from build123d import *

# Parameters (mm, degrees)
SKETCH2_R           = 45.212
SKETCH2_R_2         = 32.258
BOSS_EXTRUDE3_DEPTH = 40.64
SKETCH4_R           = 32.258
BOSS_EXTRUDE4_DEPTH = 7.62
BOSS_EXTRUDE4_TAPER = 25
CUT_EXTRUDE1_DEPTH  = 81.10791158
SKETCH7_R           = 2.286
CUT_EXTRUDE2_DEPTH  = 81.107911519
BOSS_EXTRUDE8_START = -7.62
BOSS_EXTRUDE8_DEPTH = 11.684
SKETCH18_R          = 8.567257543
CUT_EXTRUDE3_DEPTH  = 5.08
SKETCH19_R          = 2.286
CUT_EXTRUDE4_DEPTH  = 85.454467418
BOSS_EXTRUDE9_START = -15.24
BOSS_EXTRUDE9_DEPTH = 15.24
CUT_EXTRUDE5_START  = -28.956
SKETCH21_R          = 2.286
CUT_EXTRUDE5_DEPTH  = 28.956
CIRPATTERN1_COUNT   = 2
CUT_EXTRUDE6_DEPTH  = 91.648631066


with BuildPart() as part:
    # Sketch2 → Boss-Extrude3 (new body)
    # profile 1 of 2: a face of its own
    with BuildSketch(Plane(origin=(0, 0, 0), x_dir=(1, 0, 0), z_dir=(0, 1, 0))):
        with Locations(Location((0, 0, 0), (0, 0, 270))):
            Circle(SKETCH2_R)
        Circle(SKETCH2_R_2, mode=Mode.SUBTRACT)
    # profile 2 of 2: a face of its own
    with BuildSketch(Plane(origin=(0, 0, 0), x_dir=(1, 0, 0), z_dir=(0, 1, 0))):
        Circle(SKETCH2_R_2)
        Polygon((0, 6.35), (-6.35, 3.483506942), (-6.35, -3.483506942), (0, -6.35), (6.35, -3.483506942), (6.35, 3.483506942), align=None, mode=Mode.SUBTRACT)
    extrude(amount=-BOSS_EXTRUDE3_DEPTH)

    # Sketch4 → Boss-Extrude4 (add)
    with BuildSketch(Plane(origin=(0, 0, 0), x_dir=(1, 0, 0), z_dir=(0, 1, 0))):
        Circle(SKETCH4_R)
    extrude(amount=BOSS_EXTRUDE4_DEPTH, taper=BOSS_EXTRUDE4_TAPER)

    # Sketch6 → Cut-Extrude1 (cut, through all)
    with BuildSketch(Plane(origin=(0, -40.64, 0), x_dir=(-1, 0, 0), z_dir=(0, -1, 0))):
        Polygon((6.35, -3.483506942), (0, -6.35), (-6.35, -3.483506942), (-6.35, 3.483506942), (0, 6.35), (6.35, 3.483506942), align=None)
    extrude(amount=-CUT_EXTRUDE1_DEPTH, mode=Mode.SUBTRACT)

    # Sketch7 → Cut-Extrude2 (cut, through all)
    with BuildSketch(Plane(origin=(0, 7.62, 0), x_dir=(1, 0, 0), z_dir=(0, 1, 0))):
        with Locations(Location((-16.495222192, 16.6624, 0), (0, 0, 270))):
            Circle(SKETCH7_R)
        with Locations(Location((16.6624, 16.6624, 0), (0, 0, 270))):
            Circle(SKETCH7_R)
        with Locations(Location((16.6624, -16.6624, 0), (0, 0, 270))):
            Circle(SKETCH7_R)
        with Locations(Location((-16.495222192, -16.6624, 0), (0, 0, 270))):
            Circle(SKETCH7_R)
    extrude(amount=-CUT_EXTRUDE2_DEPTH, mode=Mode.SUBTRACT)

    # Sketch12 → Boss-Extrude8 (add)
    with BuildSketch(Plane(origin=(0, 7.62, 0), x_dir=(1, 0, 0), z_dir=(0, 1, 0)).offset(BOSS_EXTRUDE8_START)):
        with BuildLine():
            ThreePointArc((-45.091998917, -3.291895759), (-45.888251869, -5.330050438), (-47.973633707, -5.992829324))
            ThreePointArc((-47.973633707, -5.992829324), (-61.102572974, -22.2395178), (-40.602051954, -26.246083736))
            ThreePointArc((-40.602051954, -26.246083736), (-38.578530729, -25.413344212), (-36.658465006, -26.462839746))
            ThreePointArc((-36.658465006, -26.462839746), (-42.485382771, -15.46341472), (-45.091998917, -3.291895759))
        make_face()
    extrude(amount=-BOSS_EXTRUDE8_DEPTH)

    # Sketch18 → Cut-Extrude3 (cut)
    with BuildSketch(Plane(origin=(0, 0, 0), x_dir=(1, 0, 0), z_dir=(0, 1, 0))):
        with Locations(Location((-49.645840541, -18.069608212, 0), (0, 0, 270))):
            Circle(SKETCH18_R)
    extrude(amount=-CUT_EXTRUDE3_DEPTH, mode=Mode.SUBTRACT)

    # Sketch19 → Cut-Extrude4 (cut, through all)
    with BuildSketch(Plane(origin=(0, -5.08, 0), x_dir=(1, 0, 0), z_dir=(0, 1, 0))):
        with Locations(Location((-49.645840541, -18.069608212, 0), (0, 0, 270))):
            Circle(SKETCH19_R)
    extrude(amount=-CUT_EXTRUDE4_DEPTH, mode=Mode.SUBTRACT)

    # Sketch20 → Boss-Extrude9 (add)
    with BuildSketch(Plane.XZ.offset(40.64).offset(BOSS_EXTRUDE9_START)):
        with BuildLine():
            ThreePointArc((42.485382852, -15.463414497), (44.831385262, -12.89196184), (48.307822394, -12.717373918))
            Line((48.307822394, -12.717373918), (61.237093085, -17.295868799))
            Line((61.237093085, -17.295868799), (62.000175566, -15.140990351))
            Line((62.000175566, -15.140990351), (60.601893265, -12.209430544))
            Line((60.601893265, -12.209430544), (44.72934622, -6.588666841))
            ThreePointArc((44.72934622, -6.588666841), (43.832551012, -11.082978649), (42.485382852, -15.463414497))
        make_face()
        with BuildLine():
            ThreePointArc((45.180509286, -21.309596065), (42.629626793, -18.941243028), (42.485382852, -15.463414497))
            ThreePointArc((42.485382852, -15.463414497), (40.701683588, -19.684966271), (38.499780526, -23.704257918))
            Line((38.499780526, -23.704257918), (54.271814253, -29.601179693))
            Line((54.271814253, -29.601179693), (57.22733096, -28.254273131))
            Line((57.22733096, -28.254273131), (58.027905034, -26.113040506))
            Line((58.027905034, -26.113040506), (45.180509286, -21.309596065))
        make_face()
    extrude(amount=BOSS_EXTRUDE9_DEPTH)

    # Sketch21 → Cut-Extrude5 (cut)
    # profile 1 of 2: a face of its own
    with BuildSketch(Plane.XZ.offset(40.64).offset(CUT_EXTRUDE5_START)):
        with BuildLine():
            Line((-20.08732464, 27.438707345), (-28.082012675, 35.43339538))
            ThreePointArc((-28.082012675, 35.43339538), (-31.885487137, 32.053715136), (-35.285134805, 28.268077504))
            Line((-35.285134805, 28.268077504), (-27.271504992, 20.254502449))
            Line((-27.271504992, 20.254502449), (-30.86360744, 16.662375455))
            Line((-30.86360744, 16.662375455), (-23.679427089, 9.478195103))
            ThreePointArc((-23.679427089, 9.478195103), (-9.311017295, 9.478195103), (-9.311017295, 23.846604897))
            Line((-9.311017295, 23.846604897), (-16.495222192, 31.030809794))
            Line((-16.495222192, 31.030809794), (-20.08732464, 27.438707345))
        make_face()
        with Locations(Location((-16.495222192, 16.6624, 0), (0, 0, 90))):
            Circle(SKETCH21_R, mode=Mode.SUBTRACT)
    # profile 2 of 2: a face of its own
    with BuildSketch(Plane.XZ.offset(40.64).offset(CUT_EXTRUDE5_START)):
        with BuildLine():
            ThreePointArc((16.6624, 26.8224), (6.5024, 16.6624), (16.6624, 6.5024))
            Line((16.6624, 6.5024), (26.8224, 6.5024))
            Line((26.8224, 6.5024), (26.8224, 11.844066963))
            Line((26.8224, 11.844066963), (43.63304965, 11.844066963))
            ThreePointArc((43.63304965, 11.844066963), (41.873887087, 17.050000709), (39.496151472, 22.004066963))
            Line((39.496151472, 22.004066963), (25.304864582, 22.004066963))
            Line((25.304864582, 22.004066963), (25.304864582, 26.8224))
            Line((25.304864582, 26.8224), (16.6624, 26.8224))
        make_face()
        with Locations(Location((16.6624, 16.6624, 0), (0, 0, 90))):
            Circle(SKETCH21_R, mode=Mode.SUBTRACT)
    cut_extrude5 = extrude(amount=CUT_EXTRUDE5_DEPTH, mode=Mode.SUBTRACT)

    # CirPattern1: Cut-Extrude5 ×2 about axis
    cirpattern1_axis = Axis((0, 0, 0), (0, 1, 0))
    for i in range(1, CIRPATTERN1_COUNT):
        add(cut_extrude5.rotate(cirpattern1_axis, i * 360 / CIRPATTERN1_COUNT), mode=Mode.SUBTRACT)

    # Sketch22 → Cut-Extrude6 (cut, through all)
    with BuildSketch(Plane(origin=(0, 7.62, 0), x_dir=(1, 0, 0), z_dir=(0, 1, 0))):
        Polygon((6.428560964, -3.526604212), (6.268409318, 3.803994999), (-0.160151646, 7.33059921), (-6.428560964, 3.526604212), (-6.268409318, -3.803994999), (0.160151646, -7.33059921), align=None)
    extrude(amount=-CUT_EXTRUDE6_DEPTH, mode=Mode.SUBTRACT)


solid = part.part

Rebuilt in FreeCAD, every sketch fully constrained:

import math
import FreeCAD as App
import Part
import Sketcher

V = App.Vector
Q = App.Units.Quantity


def add_polygon(sketch, points):
    """Adds a closed chain of lines whose ends are joined by coincident constraints."""
    first, n = sketch.GeometryCount, len(points)
    for a, b in zip(points, points[1:] + points[:1]):
        sketch.addGeometry(Part.LineSegment(App.Vector(*a, 0), App.Vector(*b, 0)), False)
    for i in range(n):
        sketch.addConstraint(Sketcher.Constraint("Coincident", first + i, 2, first + (i + 1) % n, 1))

doc = App.newDocument("Part")
body = doc.addObject("PartDesign::Body", "Body")

sketch1 = body.newObject("Sketcher::SketchObject", "Sketch")
sketch1.AttachmentSupport = (doc.getObject("XZ_Plane"), [""])
sketch1.MapMode = "FlatFace"
sketch1.addGeometry(Part.Circle(V(0, 0, 0), V(0, 0, 1), 45), False)
add_polygon(sketch1, [(0, -6), (6, -3), (6, 3), (0, 6), (-6, 3), (-6, -3)])
sketch1.addConstraint([
    Sketcher.Constraint("Vertical", 2),
    Sketcher.Constraint("Vertical", 5),
    Sketcher.Constraint("Coincident", 0, 3, -1, 1),
    Sketcher.Constraint("Symmetric", 1, 2, 4, 2, -1, 1),
    Sketcher.Constraint("Symmetric", 3, 2, 6, 2, -1, 1),
    Sketcher.Constraint("PointOnObject", 3, 2, -2),
    Sketcher.Constraint("Parallel", 3, 6),
    Sketcher.Constraint("Horizontal", 2, 2, 4, 2),
    Sketcher.Constraint("Diameter", 0, Q("3.56 in")),
    Sketcher.Constraint("DistanceX", 4, 2, 2, 2, Q("0.5 in")),
    Sketcher.Constraint("DistanceY", -1, 1, 3, 2, Q("0.25 in")),
    Sketcher.Constraint("DistanceY", 2, 1, 2, 2, Q("6.967014 mm")),
])
pad1 = body.newObject("PartDesign::Pad", "Pad")
pad1.Profile = sketch1
pad1.Length = Q("1.6 in")

sketch2 = body.newObject("Sketcher::SketchObject", "Sketch001")
sketch2.AttachmentSupport = (doc.getObject("XZ_Plane"), [""])
sketch2.MapMode = "FlatFace"
sketch2.addGeometry(Part.Circle(V(0, 0, 0), V(0, 0, 1), 32), False)
sketch2.addConstraint([
    Sketcher.Constraint("Coincident", 0, 3, -1, 1),
    Sketcher.Constraint("Diameter", 0, Q("2.54 in")),
])
pad2 = body.newObject("PartDesign::Pad", "Pad001")
pad2.Profile = sketch2
pad2.Length = Q("0.3 in")
pad2.Reversed = True
pad2.TaperAngle = -25

sketch3 = body.newObject("Sketcher::SketchObject", "Sketch002")
sketch3.AttachmentSupport = (doc.getObject("XZ_Plane"), [""])
sketch3.MapMode = "FlatFace"
sketch3.AttachmentOffset = App.Placement(V(0, 0, 1.6 * 25.4), App.Rotation())
add_polygon(sketch3, [(0, 6), (-6, 3), (-6, -3), (0, -6), (6, -3), (6, 3)])
sketch3.addConstraint([
    Sketcher.Constraint("Vertical", 1),
    Sketcher.Constraint("Vertical", 4),
    Sketcher.Constraint("Symmetric", 0, 2, 3, 2, -1, 1),
    Sketcher.Constraint("Symmetric", 2, 2, 5, 2, -1, 1),
    Sketcher.Constraint("PointOnObject", 2, 2, -2),
    Sketcher.Constraint("Parallel", 2, 5),
    Sketcher.Constraint("Horizontal", 1, 2, 3, 2),
    Sketcher.Constraint("DistanceX", 1, 2, 3, 2, Q("0.5 in")),
    Sketcher.Constraint("DistanceY", 2, 2, 5, 2, Q("0.5 in")),
    Sketcher.Constraint("DistanceY", 1, 2, 1, 1, Q("6.967014 mm")),
])
pocket1 = body.newObject("PartDesign::Pocket", "Pocket")
pocket1.Profile = sketch3
pocket1.Type = "ThroughAll"

sketch4 = body.newObject("Sketcher::SketchObject", "Sketch003")
sketch4.AttachmentSupport = (doc.getObject("XZ_Plane"), [""])
sketch4.MapMode = "FlatFace"
sketch4.AttachmentOffset = App.Placement(V(0, 0, -0.3 * 25.4), App.Rotation())
sketch4.addGeometry([
    Part.Circle(V(-16.5, -16.7, 0), V(0, 0, 1), 2.3),
    Part.Circle(V(16.7, -16.7, 0), V(0, 0, 1), 2.3),
    Part.Circle(V(16.7, 16.7, 0), V(0, 0, 1), 2.3),
    Part.Circle(V(-16.5, 16.7, 0), V(0, 0, 1), 2.3),
], False)
sketch4.addConstraint([
    Sketcher.Constraint("Equal", 0, 1),
    Sketcher.Constraint("Equal", 1, 2),
    Sketcher.Constraint("Equal", 2, 3),
    Sketcher.Constraint("Symmetric", 1, 3, 2, 3, -1),
    Sketcher.Constraint("Symmetric", 0, 3, 3, 3, -1),
    Sketcher.Constraint("Horizontal", 0, 3, 1, 3),
    Sketcher.Constraint("Diameter", 0, Q("0.18 in")),
    Sketcher.Constraint("DistanceY", 0, 3, -1, 1, Q("0.656 in")),
    Sketcher.Constraint("DistanceX", -1, 1, 1, 3, Q("0.656 in")),
    Sketcher.Constraint("DistanceX", 0, 3, -1, 1, Q("16.495222 mm")),
])
pocket2 = body.newObject("PartDesign::Pocket", "Pocket001")
pocket2.Profile = sketch4
pocket2.Type = "ThroughAll"
pocket2.Reversed = True

sketch5 = body.newObject("Sketcher::SketchObject", "Sketch004")
sketch5.AttachmentSupport = (doc.getObject("XZ_Plane"), [""])
sketch5.MapMode = "FlatFace"
sketch5.addGeometry([
    Part.ArcOfCircle(Part.Circle(V(-47.6, 3.5, 0), V(0, 0, 1), 2.5), math.radians(-4), math.radians(98)),
    Part.ArcOfCircle(Part.Circle(V(-49.6, 18.1, 0), V(0, 0, 1), 12.2), math.radians(42), math.radians(278)),
    Part.ArcOfCircle(Part.Circle(V(-38.7, 27.9, 0), V(0, 0, 1), 2.5), math.radians(-138), math.radians(-36)),
    Part.ArcOfCircle(Part.Circle(V(0, 0, 0), V(0, 0, 1), 45.2), math.radians(144), math.radians(176)),
], False)
sketch5.addConstraint([
    Sketcher.Constraint("Tangent", 0, 2, 1, 2),
    Sketcher.Constraint("Tangent", 1, 1, 2, 1),
    Sketcher.Constraint("Tangent", 2, 2, 3, 1),
    Sketcher.Constraint("Tangent", 3, 2, 0, 1),
    Sketcher.Constraint("Coincident", 3, 3, -1, 1),
    Sketcher.Constraint("Equal", 0, 2),
    Sketcher.Constraint("Radius", 0, Q("0.1 in")),
    Sketcher.Constraint("Radius", 1, Q("0.48 in")),
    Sketcher.Constraint("Radius", 3, Q("1.78 in")),
    Sketcher.Constraint("DistanceX", 3, 2, -1, 1, Q("45.091999 mm")),
    Sketcher.Constraint("DistanceX", 1, 3, -1, 1, Q("49.645841 mm")),
])
pad3 = body.newObject("PartDesign::Pad", "Pad002")
pad3.Profile = sketch5
pad3.Length = Q("0.46 in")

sketch6 = body.newObject("Sketcher::SketchObject", "Sketch005")
sketch6.AttachmentSupport = (doc.getObject("XZ_Plane"), [""])
sketch6.MapMode = "FlatFace"
sketch6.addGeometry(Part.Circle(V(-50, 18, 0), V(0, 0, 1), 9), False)
sketch6.addConstraint([
    Sketcher.Constraint("Diameter", 0, Q("17.134515 mm")),
    Sketcher.Constraint("DistanceX", 0, 3, -1, 1, Q("49.645841 mm")),
    Sketcher.Constraint("DistanceY", -1, 1, 0, 3, Q("18.069608 mm")),
])
pocket3 = body.newObject("PartDesign::Pocket", "Pocket002")
pocket3.Profile = sketch6
pocket3.Length = Q("0.2 in")
pocket3.Reversed = True

sketch7 = body.newObject("Sketcher::SketchObject", "Sketch006")
sketch7.AttachmentSupport = (doc.getObject("XZ_Plane"), [""])
sketch7.MapMode = "FlatFace"
sketch7.AttachmentOffset = App.Placement(V(0, 0, 0.2 * 25.4), App.Rotation())
sketch7.addGeometry(Part.Circle(V(-49.6, 18.1, 0), V(0, 0, 1), 2.3), False)
sketch7.addConstraint([
    Sketcher.Constraint("Diameter", 0, Q("0.18 in")),
    Sketcher.Constraint("DistanceX", 0, 3, -1, 1, Q("49.645841 mm")),
    Sketcher.Constraint("DistanceY", -1, 1, 0, 3, Q("18.069608 mm")),
])
pocket4 = body.newObject("PartDesign::Pocket", "Pocket003")
pocket4.Profile = sketch7
pocket4.Type = "ThroughAll"
pocket4.Reversed = True

sketch8 = body.newObject("Sketcher::SketchObject", "Sketch007")
sketch8.AttachmentSupport = (doc.getObject("XZ_Plane"), [""])
sketch8.MapMode = "FlatFace"
sketch8.AttachmentOffset = App.Placement(V(0, 0, 1 * 25.4), App.Rotation())
sketch8.addGeometry([
    Part.ArcOfCircle(Part.Circle(V(46.8, -17, 0), V(0, 0, 1), 4.6), math.radians(71), math.radians(160)),
    Part.LineSegment(V(48.3, -12.7, 0), V(61.2, -17.3, 0)),
    Part.LineSegment(V(61.2, -17.3, 0), V(62, -15.1, 0)),
    Part.LineSegment(V(62, -15.1, 0), V(60.6, -12.2, 0)),
    Part.LineSegment(V(60.6, -12.2, 0), V(44.7, -6.6, 0)),
    Part.ArcOfCircle(Part.Circle(V(0, 0, 0), V(0, 0, 1), 45.2), math.radians(-20), math.radians(-8.38)),
    Part.ArcOfCircle(Part.Circle(V(46.8, -17, 0), V(0, 0, 1), 4.6), math.radians(160), math.radians(249)),
    Part.ArcOfCircle(Part.Circle(V(0, 0, 0), V(0, 0, 1), 45.2), math.radians(-31.62), math.radians(-20)),
    Part.LineSegment(V(38.5, -23.7, 0), V(54.3, -29.6, 0)),
    Part.LineSegment(V(54.3, -29.6, 0), V(57.2, -28.3, 0)),
    Part.LineSegment(V(57.2, -28.3, 0), V(58, -26.1, 0)),
    Part.LineSegment(V(58, -26.1, 0), V(45.2, -21.3, 0)),
], False)
sketch8.addConstraint([
    Sketcher.Constraint("Tangent", 0, 1, 1, 1),
    Sketcher.Constraint("Coincident", 1, 2, 2, 1),
    Sketcher.Constraint("Coincident", 2, 2, 3, 1),
    Sketcher.Constraint("Coincident", 3, 2, 4, 1),
    Sketcher.Constraint("Coincident", 4, 2, 5, 2),
    Sketcher.Constraint("Tangent", 5, 1, 0, 2),
    Sketcher.Constraint("Tangent", 6, 1, 7, 2),
    Sketcher.Constraint("Coincident", 7, 1, 8, 1),
    Sketcher.Constraint("Coincident", 8, 2, 9, 1),
    Sketcher.Constraint("Coincident", 9, 2, 10, 1),
    Sketcher.Constraint("Coincident", 10, 2, 11, 1),
    Sketcher.Constraint("Tangent", 11, 2, 6, 2),
    Sketcher.Constraint("Coincident", 5, 3, -1, 1),
    Sketcher.Constraint("Coincident", 7, 3, -1, 1),
    Sketcher.Constraint("Coincident", 6, 3, 0, 3),
    Sketcher.Constraint("Equal", 0, 6),
    Sketcher.Constraint("Perpendicular", 1, 2),
    Sketcher.Constraint("Perpendicular", 2, 4),
    Sketcher.Constraint("Perpendicular", 8, 10),
    Sketcher.Constraint("Perpendicular", 10, 11),
    Sketcher.Constraint("Equal", 4, 8),
    Sketcher.Constraint("Equal", 3, 9),
    Sketcher.Constraint("Equal", 2, 10),
    Sketcher.Constraint("Equal", 1, 11),
    Sketcher.Constraint("Radius", 0, Q("0.18 in")),
    Sketcher.Constraint("Radius", 5, Q("1.78 in")),
    Sketcher.Constraint("Angle", 1, Q("-19.5 deg")),
    Sketcher.Constraint("Angle", 3, Q("115.5 deg")),
    Sketcher.Constraint("Angle", 8, Q("-20.5 deg")),
    Sketcher.Constraint("Angle", 9, Q("24.5 deg")),
    Sketcher.Constraint("Distance", 1, Q("0.54 in")),
    Sketcher.Constraint("Distance", 2, Q("0.09 in")),
    Sketcher.Constraint("DistanceX", 3, 2, 1, 2, Q("0.6352 mm")),
])
pad4 = body.newObject("PartDesign::Pad", "Pad003")
pad4.Profile = sketch8
pad4.Length = Q("0.6 in")

sketch9 = body.newObject("Sketcher::SketchObject", "Sketch008")
sketch9.AttachmentSupport = (doc.getObject("XZ_Plane"), [""])
sketch9.MapMode = "FlatFace"
sketch9.AttachmentOffset = App.Placement(V(0, 0, 0.46 * 25.4), App.Rotation())
sketch9.addGeometry([
    Part.LineSegment(V(-20.1, 27.4, 0), V(-28.1, 35.4, 0)),
    Part.ArcOfCircle(Part.Circle(V(0, 0, 0), V(0, 0, 1), 45.2), math.radians(128.4), math.radians(141.3)),
    Part.LineSegment(V(-35.3, 28.3, 0), V(-27.3, 20.3, 0)),
    Part.LineSegment(V(-27.3, 20.3, 0), V(-30.9, 16.7, 0)),
    Part.LineSegment(V(-30.9, 16.7, 0), V(-23.7, 9.5, 0)),
    Part.ArcOfCircle(Part.Circle(V(-16.5, 16.7, 0), V(0, 0, 1), 10.2), math.radians(-135), math.radians(45)),
    Part.LineSegment(V(-9.3, 23.8, 0), V(-16.5, 31, 0)),
    Part.LineSegment(V(-16.5, 31, 0), V(-20.1, 27.4, 0)),
    Part.Circle(V(-16.5, 16.7, 0), V(0, 0, 1), 2.3),
    Part.ArcOfCircle(Part.Circle(V(16.7, 16.7, 0), V(0, 0, 1), 10.2), math.radians(90), math.radians(270)),
    Part.LineSegment(V(16.7, 6.5, 0), V(26.8, 6.5, 0)),
    Part.LineSegment(V(26.8, 6.5, 0), V(26.8, 11.8, 0)),
    Part.LineSegment(V(26.8, 11.8, 0), V(43.6, 11.8, 0)),
    Part.ArcOfCircle(Part.Circle(V(0, 0, 0), V(0, 0, 1), 45.2), math.radians(15.19), math.radians(29.12)),
    Part.LineSegment(V(39.5, 22, 0), V(25.3, 22, 0)),
    Part.LineSegment(V(25.3, 22, 0), V(25.3, 26.8, 0)),
    Part.LineSegment(V(25.3, 26.8, 0), V(16.7, 26.8, 0)),
    Part.Circle(V(16.7, 16.7, 0), V(0, 0, 1), 2.3),
], False)
sketch9.addConstraint([
    Sketcher.Constraint("Coincident", 0, 2, 1, 1),
    Sketcher.Constraint("Coincident", 1, 2, 2, 1),
    Sketcher.Constraint("Coincident", 2, 2, 3, 1),
    Sketcher.Constraint("Coincident", 3, 2, 4, 1),
    Sketcher.Constraint("Tangent", 4, 2, 5, 1),
    Sketcher.Constraint("Tangent", 5, 2, 6, 1),
    Sketcher.Constraint("Coincident", 6, 2, 7, 1),
    Sketcher.Constraint("Coincident", 7, 2, 0, 1),
    Sketcher.Constraint("Tangent", 9, 2, 10, 1),
    Sketcher.Constraint("Coincident", 10, 2, 11, 1),
    Sketcher.Constraint("Coincident", 11, 2, 12, 1),
    Sketcher.Constraint("Coincident", 12, 2, 13, 1),
    Sketcher.Constraint("Coincident", 13, 2, 14, 1),
    Sketcher.Constraint("Coincident", 14, 2, 15, 1),
    Sketcher.Constraint("Coincident", 15, 2, 16, 1),
    Sketcher.Constraint("Tangent", 16, 2, 9, 1),
    Sketcher.Constraint("Horizontal", 10),
    Sketcher.Constraint("Vertical", 11),
    Sketcher.Constraint("Horizontal", 12),
    Sketcher.Constraint("Horizontal", 14),
    Sketcher.Constraint("Vertical", 15),
    Sketcher.Constraint("Horizontal", 16),
    Sketcher.Constraint("Coincident", 1, 3, -1, 1),
    Sketcher.Constraint("Coincident", 13, 3, -1, 1),
    Sketcher.Constraint("Coincident", 8, 3, 5, 3),
    Sketcher.Constraint("Coincident", 17, 3, 9, 3),
    Sketcher.Constraint("Equal", 5, 9),
    Sketcher.Constraint("Equal", 1, 13),
    Sketcher.Constraint("Equal", 8, 17),
    Sketcher.Constraint("Perpendicular", 2, 3),
    Sketcher.Constraint("Parallel", 0, 4),
    Sketcher.Constraint("Parallel", 4, 6),
    Sketcher.Constraint("Perpendicular", 6, 7),
    Sketcher.Constraint("Horizontal", 8, 3, 9, 3),
    Sketcher.Constraint("Vertical", 8, 3, 6, 2),
    Sketcher.Constraint("Radius", 5, Q("0.4 in")),
    Sketcher.Constraint("Diameter", 8, Q("0.18 in")),
    Sketcher.Constraint("Radius", 1, Q("1.78 in")),
    Sketcher.Constraint("DistanceX", 10, 1, 10, 2, Q("0.4 in")),
    Sketcher.Constraint("Angle", 0, Q("135 deg")),
    Sketcher.Constraint("Distance", 7, Q("0.2 in")),
    Sketcher.Constraint("DistanceY", 12, 2, 13, 2, Q("0.4 in")),
    Sketcher.Constraint("DistanceY", -1, 1, 5, 3, Q("0.656 in")),
    Sketcher.Constraint("DistanceX", -1, 1, 9, 3, Q("0.656 in")),
    Sketcher.Constraint("DistanceX", 12, 1, 12, 2, Q("16.81065 mm")),
    Sketcher.Constraint("DistanceX", 14, 2, 14, 1, Q("14.191287 mm")),
    Sketcher.Constraint("DistanceX", 0, 2, 5, 3, Q("11.58679 mm")),
    Sketcher.Constraint("DistanceX", 1, 2, 2, 2, Q("8.01363 mm")),
    Sketcher.Constraint("DistanceY", 3, 2, 0, 2, Q("18.77102 mm")),
    Sketcher.Constraint("DistanceX", 2, 2, 7, 2, Q("7.18418 mm")),
])
pocket5 = body.newObject("PartDesign::Pocket", "Pocket004")
pocket5.Profile = sketch9
pocket5.Length = Q("1.14 in")
pocket5.Reversed = True
doc.recompute()

polarpattern = body.newObject("PartDesign::PolarPattern", "PolarPattern")
polarpattern.Originals = [pocket5]
polarpattern.Axis = (doc.getObject("Y_Axis"), [""])
polarpattern.Angle = 360
polarpattern.Occurrences = 2
body.Tip = polarpattern

sketch10 = body.newObject("Sketcher::SketchObject", "Sketch009")
sketch10.AttachmentSupport = (doc.getObject("XZ_Plane"), [""])
sketch10.MapMode = "FlatFace"
sketch10.AttachmentOffset = App.Placement(V(0, 0, -0.3 * 25.4), App.Rotation())
add_polygon(sketch10, [(6.428561, 3.526604), (6.268409, -3.803995), (-0.160152, -7.330599), (-6.428561, -3.526604), (-6.268409, 3.803995), (0.160152, 7.330599)])
sketch10.addConstraint([
    Sketcher.Constraint("DistanceY", 1, 2, -1, 1, Q("7.330599 mm")),
    Sketcher.Constraint("DistanceY", -1, 1, 4, 2, Q("7.330599 mm")),
    Sketcher.Constraint("DistanceY", 2, 2, 3, 2, Q("7.330599 mm")),
    Sketcher.Constraint("DistanceY", 0, 2, 5, 2, Q("7.330599 mm")),
    Sketcher.Constraint("Distance", 0, Q("7.332348 mm")),
    Sketcher.Constraint("Distance", 1, Q("7.332348 mm")),
    Sketcher.Constraint("Distance", 2, Q("7.332348 mm")),
    Sketcher.Constraint("Distance", 3, Q("7.332348 mm")),
    Sketcher.Constraint("Distance", 4, Q("7.332348 mm")),
    Sketcher.Constraint("Distance", 5, Q("7.332348 mm")),
    Sketcher.Constraint("DistanceX", -1, 1, 0, 2, Q("6.268409 mm")),
    Sketcher.Constraint("DistanceX", 1, 2, -1, 1, Q("0.160152 mm")),
])
pocket6 = body.newObject("PartDesign::Pocket", "Pocket005")
pocket6.Profile = sketch10
pocket6.Type = "ThroughAll"
pocket6.Reversed = True

doc.recompute()
